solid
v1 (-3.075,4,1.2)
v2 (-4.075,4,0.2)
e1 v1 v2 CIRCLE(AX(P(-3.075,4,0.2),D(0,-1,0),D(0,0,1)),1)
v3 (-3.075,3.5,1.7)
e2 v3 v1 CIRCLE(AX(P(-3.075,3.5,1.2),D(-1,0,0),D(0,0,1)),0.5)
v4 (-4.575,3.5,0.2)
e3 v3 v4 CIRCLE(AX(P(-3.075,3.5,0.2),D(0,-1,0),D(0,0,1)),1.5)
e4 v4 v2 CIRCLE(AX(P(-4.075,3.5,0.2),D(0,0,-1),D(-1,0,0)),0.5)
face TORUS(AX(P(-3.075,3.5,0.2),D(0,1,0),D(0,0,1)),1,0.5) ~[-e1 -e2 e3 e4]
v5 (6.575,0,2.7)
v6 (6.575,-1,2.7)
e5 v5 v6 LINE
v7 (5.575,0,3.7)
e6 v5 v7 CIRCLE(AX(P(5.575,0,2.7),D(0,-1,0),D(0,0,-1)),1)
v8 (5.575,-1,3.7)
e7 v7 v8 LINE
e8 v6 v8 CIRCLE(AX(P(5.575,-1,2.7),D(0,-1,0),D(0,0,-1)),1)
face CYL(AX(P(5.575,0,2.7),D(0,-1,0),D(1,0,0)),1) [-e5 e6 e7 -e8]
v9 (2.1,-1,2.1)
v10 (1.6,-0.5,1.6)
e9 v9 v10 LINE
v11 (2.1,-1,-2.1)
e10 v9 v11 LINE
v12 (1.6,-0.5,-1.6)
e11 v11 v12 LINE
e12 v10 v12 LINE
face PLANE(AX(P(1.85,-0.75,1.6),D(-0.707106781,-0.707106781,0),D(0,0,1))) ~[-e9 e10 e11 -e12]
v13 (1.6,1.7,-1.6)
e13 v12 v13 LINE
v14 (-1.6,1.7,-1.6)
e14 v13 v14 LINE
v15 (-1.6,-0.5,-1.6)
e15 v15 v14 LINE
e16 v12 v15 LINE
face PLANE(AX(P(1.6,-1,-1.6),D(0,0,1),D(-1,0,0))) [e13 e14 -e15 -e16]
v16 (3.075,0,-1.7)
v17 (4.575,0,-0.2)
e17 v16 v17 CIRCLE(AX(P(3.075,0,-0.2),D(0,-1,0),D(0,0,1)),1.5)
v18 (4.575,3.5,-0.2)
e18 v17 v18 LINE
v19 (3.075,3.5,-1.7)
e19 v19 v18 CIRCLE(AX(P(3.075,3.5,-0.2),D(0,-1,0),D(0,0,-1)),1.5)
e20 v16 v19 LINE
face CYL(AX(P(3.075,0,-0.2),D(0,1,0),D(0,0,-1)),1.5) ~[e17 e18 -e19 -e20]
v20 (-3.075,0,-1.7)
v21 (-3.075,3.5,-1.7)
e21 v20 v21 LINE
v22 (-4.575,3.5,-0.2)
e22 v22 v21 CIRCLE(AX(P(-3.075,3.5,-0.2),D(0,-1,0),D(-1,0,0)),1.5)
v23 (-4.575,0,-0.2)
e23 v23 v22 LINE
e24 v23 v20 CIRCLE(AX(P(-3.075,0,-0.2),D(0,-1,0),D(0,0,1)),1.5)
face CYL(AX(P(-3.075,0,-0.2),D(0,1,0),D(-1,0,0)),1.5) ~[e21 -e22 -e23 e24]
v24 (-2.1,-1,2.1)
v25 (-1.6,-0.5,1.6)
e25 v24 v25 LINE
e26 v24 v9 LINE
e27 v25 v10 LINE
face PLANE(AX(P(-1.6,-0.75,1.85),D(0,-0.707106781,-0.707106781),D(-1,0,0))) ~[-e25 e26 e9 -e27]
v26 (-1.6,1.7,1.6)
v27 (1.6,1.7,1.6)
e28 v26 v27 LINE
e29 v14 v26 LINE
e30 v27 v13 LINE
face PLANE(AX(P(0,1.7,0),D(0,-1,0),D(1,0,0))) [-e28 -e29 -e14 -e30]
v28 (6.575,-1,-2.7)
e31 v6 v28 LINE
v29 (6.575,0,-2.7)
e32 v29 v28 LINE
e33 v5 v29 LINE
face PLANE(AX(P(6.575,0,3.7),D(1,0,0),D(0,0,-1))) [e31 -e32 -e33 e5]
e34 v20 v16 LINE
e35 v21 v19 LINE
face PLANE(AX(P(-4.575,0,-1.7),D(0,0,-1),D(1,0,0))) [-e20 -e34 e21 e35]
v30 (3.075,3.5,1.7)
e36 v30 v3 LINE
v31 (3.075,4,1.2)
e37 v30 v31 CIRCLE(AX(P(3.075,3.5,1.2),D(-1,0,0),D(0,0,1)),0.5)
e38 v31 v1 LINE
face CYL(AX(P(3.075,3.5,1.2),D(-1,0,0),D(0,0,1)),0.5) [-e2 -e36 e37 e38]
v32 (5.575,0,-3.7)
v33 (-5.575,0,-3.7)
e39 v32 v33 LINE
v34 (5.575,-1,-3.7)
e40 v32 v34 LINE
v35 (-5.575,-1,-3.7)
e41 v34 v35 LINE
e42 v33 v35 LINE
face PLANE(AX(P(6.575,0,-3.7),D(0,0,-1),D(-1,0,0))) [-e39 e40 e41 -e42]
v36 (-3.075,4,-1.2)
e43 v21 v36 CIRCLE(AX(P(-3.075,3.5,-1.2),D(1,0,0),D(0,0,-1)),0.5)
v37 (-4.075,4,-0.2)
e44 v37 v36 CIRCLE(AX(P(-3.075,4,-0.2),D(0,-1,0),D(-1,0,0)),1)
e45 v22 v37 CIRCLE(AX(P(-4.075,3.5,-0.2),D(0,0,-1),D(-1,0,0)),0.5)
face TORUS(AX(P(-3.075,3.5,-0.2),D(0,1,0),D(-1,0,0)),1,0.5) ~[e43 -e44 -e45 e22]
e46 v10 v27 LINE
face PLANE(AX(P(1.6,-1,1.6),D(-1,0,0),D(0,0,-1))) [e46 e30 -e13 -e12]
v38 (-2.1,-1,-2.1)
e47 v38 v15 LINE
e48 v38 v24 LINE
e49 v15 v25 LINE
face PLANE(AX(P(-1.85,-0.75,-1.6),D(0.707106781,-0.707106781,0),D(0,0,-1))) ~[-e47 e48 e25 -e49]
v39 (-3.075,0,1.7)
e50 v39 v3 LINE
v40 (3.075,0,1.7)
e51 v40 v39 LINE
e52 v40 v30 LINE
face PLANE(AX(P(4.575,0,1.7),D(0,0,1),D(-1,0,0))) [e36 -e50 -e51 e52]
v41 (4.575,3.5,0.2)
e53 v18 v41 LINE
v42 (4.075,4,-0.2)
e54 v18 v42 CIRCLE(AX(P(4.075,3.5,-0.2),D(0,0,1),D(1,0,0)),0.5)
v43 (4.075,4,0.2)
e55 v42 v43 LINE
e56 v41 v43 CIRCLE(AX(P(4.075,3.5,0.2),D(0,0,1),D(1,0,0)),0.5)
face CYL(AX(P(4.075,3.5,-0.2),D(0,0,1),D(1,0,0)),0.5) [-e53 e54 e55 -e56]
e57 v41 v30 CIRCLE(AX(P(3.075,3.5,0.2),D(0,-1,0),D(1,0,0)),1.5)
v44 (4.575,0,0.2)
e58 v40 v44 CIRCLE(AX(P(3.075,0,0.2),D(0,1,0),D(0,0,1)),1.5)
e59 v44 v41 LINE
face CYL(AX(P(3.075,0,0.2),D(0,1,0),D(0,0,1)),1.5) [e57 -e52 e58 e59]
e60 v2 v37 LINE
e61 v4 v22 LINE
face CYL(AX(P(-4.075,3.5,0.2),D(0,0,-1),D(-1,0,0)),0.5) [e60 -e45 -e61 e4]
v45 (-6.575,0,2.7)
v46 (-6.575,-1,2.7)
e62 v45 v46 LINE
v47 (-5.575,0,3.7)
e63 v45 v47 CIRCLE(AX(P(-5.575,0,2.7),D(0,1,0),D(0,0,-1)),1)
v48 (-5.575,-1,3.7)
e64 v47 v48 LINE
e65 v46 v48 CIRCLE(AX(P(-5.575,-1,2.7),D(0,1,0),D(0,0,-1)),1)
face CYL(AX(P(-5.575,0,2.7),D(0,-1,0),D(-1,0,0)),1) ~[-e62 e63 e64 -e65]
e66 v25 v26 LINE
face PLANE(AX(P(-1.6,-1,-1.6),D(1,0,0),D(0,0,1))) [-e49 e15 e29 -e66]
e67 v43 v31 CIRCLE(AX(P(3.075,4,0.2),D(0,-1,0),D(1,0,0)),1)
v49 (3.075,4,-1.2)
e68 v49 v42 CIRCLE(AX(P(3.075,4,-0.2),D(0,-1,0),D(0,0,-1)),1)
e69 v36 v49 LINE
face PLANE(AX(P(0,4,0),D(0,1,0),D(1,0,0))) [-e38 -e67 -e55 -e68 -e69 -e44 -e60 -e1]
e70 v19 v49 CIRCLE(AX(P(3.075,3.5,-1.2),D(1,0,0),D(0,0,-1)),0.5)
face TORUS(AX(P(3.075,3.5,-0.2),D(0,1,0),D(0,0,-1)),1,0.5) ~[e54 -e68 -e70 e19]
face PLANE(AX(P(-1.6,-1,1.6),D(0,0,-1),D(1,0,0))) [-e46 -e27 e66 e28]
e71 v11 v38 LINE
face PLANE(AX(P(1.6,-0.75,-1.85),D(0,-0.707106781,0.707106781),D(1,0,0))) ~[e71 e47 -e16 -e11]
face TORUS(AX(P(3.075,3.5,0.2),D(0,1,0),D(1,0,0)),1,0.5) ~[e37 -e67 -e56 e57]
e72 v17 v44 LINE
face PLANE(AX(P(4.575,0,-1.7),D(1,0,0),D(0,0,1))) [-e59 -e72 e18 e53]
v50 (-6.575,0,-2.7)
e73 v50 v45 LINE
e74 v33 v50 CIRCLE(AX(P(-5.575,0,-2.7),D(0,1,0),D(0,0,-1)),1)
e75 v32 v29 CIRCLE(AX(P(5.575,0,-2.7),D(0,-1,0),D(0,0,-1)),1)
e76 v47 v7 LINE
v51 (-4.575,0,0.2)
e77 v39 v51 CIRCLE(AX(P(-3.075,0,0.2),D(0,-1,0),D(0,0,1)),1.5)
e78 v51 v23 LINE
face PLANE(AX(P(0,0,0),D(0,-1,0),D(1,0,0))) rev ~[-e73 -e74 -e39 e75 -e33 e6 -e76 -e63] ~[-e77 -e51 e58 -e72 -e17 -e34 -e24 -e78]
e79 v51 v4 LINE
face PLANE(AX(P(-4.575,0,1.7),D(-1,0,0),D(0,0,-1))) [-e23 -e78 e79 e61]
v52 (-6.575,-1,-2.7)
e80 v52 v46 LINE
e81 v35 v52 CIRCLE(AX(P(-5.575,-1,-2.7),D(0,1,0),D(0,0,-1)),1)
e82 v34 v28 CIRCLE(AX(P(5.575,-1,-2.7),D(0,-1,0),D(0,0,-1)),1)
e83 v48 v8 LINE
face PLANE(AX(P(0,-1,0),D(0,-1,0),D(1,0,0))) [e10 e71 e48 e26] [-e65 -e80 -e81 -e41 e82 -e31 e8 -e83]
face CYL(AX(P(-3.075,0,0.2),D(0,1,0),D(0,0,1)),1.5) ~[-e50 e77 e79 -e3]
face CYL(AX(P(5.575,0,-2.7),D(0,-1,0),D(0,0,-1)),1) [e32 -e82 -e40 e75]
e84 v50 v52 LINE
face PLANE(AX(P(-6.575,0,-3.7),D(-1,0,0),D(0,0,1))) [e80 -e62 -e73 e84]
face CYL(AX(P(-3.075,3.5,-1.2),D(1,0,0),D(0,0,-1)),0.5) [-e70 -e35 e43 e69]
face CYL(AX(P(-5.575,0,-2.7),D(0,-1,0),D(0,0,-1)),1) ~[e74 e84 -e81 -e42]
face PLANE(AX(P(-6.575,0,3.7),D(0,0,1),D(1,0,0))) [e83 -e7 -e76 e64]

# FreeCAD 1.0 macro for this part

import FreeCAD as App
import Part
import Sketcher
from FreeCAD import Vector
Q = App.Units.Quantity


def edges_at(feature, points):
    """Names of the edges that pass closest to the given points."""
    edges = feature.Shape.Edges
    near = lambda p: min(range(len(edges)), key=lambda i: edges[i].distToShape(Part.Vertex(*p))[0])
    return sorted({f"Edge{near(p) + 1}" for p in points})

doc = App.newDocument("Part")
body = doc.addObject("PartDesign::Body", "Body")

# Sketch on XZ plane
sketch1 = body.newObject("Sketcher::SketchObject", "Sketch")
sketch1.AttachmentSupport = (doc.getObject("XZ_Plane"), [""])
sketch1.MapMode = "FlatFace"
sketch1.addGeometry(Part.LineSegment(Vector(-4.575, 1.7, 0), Vector(4.575, 1.7, 0)), False)
sketch1.addGeometry(Part.LineSegment(Vector(4.575, 1.7, 0), Vector(4.575, -1.7, 0)), False)
sketch1.addGeometry(Part.LineSegment(Vector(4.575, -1.7, 0), Vector(-4.575, -1.7, 0)), False)
sketch1.addGeometry(Part.LineSegment(Vector(-4.575, -1.7, 0), Vector(-4.575, 1.7, 0)), False)
sketch1.addConstraint(Sketcher.Constraint("Coincident", 0, 2, 1, 1))
sketch1.addConstraint(Sketcher.Constraint("Coincident", 1, 2, 2, 1))
sketch1.addConstraint(Sketcher.Constraint("Coincident", 2, 2, 3, 1))
sketch1.addConstraint(Sketcher.Constraint("Coincident", 3, 2, 0, 1))
sketch1.addConstraint(Sketcher.Constraint("Horizontal", 0))
sketch1.addConstraint(Sketcher.Constraint("Vertical", 1))
sketch1.addConstraint(Sketcher.Constraint("Horizontal", 2))
sketch1.addConstraint(Sketcher.Constraint("Vertical", 3))
sketch1.addConstraint(Sketcher.Constraint("Symmetric", 0, 2, 2, 2, -1, 1))
sketch1.addConstraint(Sketcher.Constraint("DistanceY", 1, 2, 1, 1, Q("3.4 mm")))
sketch1.addConstraint(Sketcher.Constraint("DistanceX", 0, 1, 0, 2, Q("9.15 mm")))
pad1 = body.newObject("PartDesign::Pad", "Pad")
pad1.Profile = sketch1
pad1.Length = 4
pad1.Reversed = True

# Sketch on XZ plane
sketch2 = body.newObject("Sketcher::SketchObject", "Sketch001")
sketch2.AttachmentSupport = (doc.getObject("XZ_Plane"), [""])
sketch2.MapMode = "FlatFace"
sketch2.addGeometry(Part.LineSegment(Vector(-6.575, -3.7, 0), Vector(6.575, -3.7, 0)), False)
sketch2.addGeometry(Part.LineSegment(Vector(6.575, -3.7, 0), Vector(6.575, 3.7, 0)), False)
sketch2.addGeometry(Part.LineSegment(Vector(6.575, 3.7, 0), Vector(-6.575, 3.7, 0)), False)
sketch2.addGeometry(Part.LineSegment(Vector(-6.575, 3.7, 0), Vector(-6.575, -3.7, 0)), False)
sketch2.addConstraint(Sketcher.Constraint("Coincident", 0, 2, 1, 1))
sketch2.addConstraint(Sketcher.Constraint("Coincident", 1, 2, 2, 1))
sketch2.addConstraint(Sketcher.Constraint("Coincident", 2, 2, 3, 1))
sketch2.addConstraint(Sketcher.Constraint("Coincident", 3, 2, 0, 1))
sketch2.addConstraint(Sketcher.Constraint("Horizontal", 0))
sketch2.addConstraint(Sketcher.Constraint("Vertical", 1))
sketch2.addConstraint(Sketcher.Constraint("Horizontal", 2))
sketch2.addConstraint(Sketcher.Constraint("Vertical", 3))
sketch2.addConstraint(Sketcher.Constraint("Symmetric", 0, 2, 2, 2, -1, 1))
sketch2.addConstraint(Sketcher.Constraint("DistanceY", 1, 1, 1, 2, Q("7.4 mm")))
sketch2.addConstraint(Sketcher.Constraint("DistanceX", 0, 1, 0, 2, Q("13.15 mm")))
pad2 = body.newObject("PartDesign::Pad", "Pad001")
pad2.Profile = sketch2
pad2.Length = 1
doc.recompute()

fillet = body.newObject("PartDesign::Fillet", "Fillet")
fillet.Base = (pad2, edges_at(pad2, [
    (4.575, 2, 1.7),
    (4.575, 2, -1.7),
    (-4.575, 2, 1.7),
    (-4.575, 2, -1.7),
]))
fillet.Radius = 1.5
doc.recompute()

fillet2 = body.newObject("PartDesign::Fillet", "Fillet001")
fillet2.Base = (fillet, edges_at(fillet, [
    (4.136, 4, -1.261),
    (0, 4, -1.7),
    (-4.136, 4, -1.261),
    (-4.575, 4, 0),
    (-4.136, 4, 1.261),
    (0, 4, 1.7),
    (4.136, 4, 1.261),
    (4.575, 4, 0),
]))
fillet2.Radius = 0.5
doc.recompute()

fillet3 = body.newObject("PartDesign::Fillet", "Fillet002")
fillet3.Base = (fillet2, edges_at(fillet2, [
    (6.575, -0.5, 3.7),
    (6.575, -0.5, -3.7),
    (-6.575, -0.5, 3.7),
    (-6.575, -0.5, -3.7),
]))
fillet3.Radius = 1

# Sketch on XZ plane
sketch3 = body.newObject("Sketcher::SketchObject", "Sketch002")
sketch3.AttachmentSupport = (doc.getObject("XZ_Plane"), [""])
sketch3.MapMode = "FlatFace"
sketch3.AttachmentOffset = App.Placement(Vector(0, 0, 1), App.Rotation())
sketch3.addGeometry(Part.LineSegment(Vector(-1.6, -1.6, 0), Vector(1.6, -1.6, 0)), False)
sketch3.addGeometry(Part.LineSegment(Vector(1.6, -1.6, 0), Vector(1.6, 1.6, 0)), False)
sketch3.addGeometry(Part.LineSegment(Vector(1.6, 1.6, 0), Vector(-1.6, 1.6, 0)), False)
sketch3.addGeometry(Part.LineSegment(Vector(-1.6, 1.6, 0), Vector(-1.6, -1.6, 0)), False)
sketch3.addConstraint(Sketcher.Constraint("Coincident", 0, 2, 1, 1))
sketch3.addConstraint(Sketcher.Constraint("Coincident", 1, 2, 2, 1))
sketch3.addConstraint(Sketcher.Constraint("Coincident", 2, 2, 3, 1))
sketch3.addConstraint(Sketcher.Constraint("Coincident", 3, 2, 0, 1))
sketch3.addConstraint(Sketcher.Constraint("Horizontal", 0))
sketch3.addConstraint(Sketcher.Constraint("Vertical", 1))
sketch3.addConstraint(Sketcher.Constraint("Horizontal", 2))
sketch3.addConstraint(Sketcher.Constraint("Vertical", 3))
sketch3.addConstraint(Sketcher.Constraint("Symmetric", 0, 2, 2, 2, -1, 1))
sketch3.addConstraint(Sketcher.Constraint("Equal", 2, 1))
sketch3.addConstraint(Sketcher.Constraint("DistanceX", 0, 1, 0, 2, Q("3.2 mm")))
pocket1 = body.newObject("PartDesign::Pocket", "Pocket")
pocket1.Profile = sketch3
pocket1.Length = 2.7
doc.recompute()

chamfer = body.newObject("PartDesign::Chamfer", "Chamfer")
chamfer.Base = (pocket1, edges_at(pocket1, [
    (1.6, -1, 0),
    (0, -1, -1.6),
    (0, -1, 1.6),
    (-1.6, -1, 0),
]))
chamfer.Size = 0.5

doc.recompute()
